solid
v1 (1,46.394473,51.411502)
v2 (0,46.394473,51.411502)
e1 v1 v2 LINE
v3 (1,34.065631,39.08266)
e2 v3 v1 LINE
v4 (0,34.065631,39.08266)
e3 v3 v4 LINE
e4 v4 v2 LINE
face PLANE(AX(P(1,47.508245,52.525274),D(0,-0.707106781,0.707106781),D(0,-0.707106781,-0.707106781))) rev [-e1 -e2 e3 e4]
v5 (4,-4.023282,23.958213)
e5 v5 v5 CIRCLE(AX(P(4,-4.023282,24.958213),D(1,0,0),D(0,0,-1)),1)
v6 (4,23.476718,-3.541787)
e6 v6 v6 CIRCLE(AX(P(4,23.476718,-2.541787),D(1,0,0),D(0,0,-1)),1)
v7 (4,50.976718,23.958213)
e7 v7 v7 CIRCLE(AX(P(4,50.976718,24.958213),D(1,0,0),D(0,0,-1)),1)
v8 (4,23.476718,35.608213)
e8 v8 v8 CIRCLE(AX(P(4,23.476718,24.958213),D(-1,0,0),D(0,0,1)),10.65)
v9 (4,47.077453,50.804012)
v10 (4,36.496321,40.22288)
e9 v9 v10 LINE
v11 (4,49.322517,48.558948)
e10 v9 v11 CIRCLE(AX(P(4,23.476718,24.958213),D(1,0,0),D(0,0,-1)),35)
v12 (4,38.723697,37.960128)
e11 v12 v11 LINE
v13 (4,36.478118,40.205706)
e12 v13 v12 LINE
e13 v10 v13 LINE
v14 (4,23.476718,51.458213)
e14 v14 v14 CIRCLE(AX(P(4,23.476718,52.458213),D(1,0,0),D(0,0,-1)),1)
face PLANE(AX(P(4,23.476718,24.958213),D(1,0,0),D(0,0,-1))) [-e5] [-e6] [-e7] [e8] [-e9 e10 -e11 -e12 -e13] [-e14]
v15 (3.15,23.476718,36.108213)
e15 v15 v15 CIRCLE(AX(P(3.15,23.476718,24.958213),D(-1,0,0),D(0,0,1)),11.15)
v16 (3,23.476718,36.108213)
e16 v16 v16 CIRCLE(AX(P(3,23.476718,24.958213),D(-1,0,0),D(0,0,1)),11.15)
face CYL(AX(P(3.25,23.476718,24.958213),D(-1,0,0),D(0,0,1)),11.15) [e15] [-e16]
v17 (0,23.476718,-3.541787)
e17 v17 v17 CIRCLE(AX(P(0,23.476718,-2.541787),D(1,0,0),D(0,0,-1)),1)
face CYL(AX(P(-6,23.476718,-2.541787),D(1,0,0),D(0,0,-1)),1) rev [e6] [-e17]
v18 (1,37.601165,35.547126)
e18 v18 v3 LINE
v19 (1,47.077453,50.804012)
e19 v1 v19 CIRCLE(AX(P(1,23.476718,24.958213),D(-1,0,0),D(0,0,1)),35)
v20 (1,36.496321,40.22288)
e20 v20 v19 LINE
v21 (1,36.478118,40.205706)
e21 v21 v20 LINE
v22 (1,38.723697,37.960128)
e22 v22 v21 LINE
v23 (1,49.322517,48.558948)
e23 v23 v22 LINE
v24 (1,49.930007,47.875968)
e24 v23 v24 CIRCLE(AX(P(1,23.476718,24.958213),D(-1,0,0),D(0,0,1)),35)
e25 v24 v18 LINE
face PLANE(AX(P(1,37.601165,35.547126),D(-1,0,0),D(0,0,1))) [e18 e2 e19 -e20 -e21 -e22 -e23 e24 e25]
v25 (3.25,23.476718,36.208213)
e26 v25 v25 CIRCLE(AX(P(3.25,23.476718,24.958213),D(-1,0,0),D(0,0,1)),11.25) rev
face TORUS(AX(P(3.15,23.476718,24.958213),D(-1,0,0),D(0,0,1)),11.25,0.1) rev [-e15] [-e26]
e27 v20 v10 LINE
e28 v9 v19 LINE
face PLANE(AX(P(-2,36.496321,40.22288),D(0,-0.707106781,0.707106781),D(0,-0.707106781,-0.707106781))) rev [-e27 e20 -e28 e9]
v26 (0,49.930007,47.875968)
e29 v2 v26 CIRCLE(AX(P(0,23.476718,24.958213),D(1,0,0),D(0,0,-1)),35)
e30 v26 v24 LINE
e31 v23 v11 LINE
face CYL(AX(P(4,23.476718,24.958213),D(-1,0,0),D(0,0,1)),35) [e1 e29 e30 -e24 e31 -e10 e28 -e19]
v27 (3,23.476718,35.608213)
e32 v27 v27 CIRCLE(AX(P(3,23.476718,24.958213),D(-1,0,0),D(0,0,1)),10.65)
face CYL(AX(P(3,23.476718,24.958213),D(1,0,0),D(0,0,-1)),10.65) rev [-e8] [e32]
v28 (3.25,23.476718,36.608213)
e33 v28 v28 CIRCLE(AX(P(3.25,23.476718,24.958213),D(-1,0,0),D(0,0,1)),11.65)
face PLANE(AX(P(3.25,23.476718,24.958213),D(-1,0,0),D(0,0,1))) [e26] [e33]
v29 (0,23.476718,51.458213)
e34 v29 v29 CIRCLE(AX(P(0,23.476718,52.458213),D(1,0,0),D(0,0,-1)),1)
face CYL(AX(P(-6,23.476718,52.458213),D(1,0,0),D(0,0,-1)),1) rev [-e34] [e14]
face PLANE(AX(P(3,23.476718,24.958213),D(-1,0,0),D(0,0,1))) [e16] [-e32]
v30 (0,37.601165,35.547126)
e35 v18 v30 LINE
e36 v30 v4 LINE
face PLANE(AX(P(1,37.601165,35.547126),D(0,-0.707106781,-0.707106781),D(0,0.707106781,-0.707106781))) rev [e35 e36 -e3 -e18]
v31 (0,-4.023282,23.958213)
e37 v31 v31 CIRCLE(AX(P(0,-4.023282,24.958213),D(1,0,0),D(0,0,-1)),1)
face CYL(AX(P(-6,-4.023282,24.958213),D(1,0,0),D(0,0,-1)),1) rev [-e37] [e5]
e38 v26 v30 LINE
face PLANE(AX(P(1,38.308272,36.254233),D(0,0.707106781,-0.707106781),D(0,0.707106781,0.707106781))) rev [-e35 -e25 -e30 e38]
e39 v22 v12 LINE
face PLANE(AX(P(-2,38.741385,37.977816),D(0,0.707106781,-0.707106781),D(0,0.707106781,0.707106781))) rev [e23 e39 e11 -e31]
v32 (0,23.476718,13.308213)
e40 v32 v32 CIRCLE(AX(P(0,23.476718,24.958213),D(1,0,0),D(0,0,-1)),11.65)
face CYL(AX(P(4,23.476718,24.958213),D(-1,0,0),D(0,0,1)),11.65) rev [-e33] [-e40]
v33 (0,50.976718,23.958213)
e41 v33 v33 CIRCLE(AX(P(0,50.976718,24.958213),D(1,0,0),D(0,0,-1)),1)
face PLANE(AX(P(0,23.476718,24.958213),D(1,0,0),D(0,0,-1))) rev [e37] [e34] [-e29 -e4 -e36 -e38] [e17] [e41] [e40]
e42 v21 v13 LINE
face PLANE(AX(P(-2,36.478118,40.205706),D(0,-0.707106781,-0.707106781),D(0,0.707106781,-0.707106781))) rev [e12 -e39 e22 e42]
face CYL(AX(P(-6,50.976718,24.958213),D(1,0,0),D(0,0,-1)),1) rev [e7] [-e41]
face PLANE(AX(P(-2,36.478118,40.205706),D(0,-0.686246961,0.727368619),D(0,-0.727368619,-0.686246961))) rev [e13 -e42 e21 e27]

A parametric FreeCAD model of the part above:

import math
import FreeCAD as App
import Part
import Sketcher
Q = App.Units.Quantity


def edges_at(feature, points):
    """Names of the edges that pass closest to the given points."""
    edges = feature.Shape.Edges
    near = lambda p: min(range(len(edges)), key=lambda i: edges[i].distToShape(Part.Vertex(*p))[0])
    return sorted({f"Edge{near(p) + 1}" for p in points})

doc = App.newDocument("Part")
body = doc.addObject("PartDesign::Body", "Body")

sketch1 = body.newObject("Sketcher::SketchObject", "Sketch")
sketch1.AttachmentSupport = (doc.getObject("YZ_Plane"), [""])
sketch1.MapMode = "FlatFace"
sketch1.addGeometry([
    Part.Circle(App.Vector(23, 25, 0), App.Vector(0, 0, 1), 35),
    Part.Circle(App.Vector(23, 25, 0), App.Vector(0, 0, 1), 12),
], False)
sketch1.addConstraint([
    Sketcher.Constraint("Coincident", 1, 3, 0, 3),
    Sketcher.Constraint("Diameter", 0, Q("70 mm")),
    Sketcher.Constraint("Diameter", 1, Q("23.3 mm")),
    Sketcher.Constraint("DistanceX", -1, 1, 0, 3, Q("23.476718 mm")),
    Sketcher.Constraint("DistanceY", -1, 1, 0, 3, Q("24.958213 mm")),
])
pad1 = body.newObject("PartDesign::Pad", "Pad")
pad1.Profile = sketch1
pad1.Length = 4

sketch2 = body.newObject("Sketcher::SketchObject", "Sketch001")
sketch2.AttachmentSupport = (doc.getObject("YZ_Plane"), [""])
sketch2.MapMode = "FlatFace"
sketch2.addGeometry([
    Part.LineSegment(App.Vector(48.9, 49, 0), App.Vector(38.3, 38.4, 0)),
    Part.ArcOfCircle(Part.Circle(App.Vector(23.5, 25, 0), App.Vector(0, 0, 1), 20), math.radians(42.13), math.radians(47.87)),
    Part.LineSegment(App.Vector(36.9, 39.8, 0), App.Vector(47.5, 50.4, 0)),
    Part.LineSegment(App.Vector(47.5, 50.4, 0), App.Vector(51.1, 54, 0)),
    Part.LineSegment(App.Vector(51.1, 54, 0), App.Vector(52.9, 51.3, 0)),
    Part.LineSegment(App.Vector(52.9, 51.3, 0), App.Vector(48.9, 49, 0)),
], False)
sketch2.addConstraint([
    Sketcher.Constraint("Coincident", 0, 2, 1, 1),
    Sketcher.Constraint("Coincident", 1, 2, 2, 1),
    Sketcher.Constraint("Coincident", 2, 2, 3, 1),
    Sketcher.Constraint("Coincident", 3, 2, 4, 1),
    Sketcher.Constraint("Coincident", 4, 2, 5, 1),
    Sketcher.Constraint("Coincident", 5, 2, 0, 1),
    Sketcher.Constraint("Parallel", 0, 2),
    Sketcher.Constraint("Parallel", 2, 3),
    Sketcher.Constraint("Equal", 0, 2),
    Sketcher.Constraint("Radius", 1, Q("20 mm")),
    Sketcher.Constraint("Angle", 0, Q("-135 deg")),
    Sketcher.Constraint("DistanceX", 0, 2, 3, 2, Q("12.803299 mm")),
    Sketcher.Constraint("Distance", 4, Q("3.25162 mm")),
    Sketcher.Constraint("Distance", 5, Q("4.618449 mm")),
    Sketcher.Constraint("DistanceX", -1, 1, 0, 2, Q("38.308272 mm")),
    Sketcher.Constraint("DistanceX", -1, 1, 2, 2, Q("47.518348 mm")),
    Sketcher.Constraint("DistanceY", -1, 1, 3, 2, Q("54.007279 mm")),
    Sketcher.Constraint("DistanceY", -1, 1, 4, 2, Q("51.31203 mm")),
    Sketcher.Constraint("DistanceX", -1, 1, 5, 2, Q("48.932562 mm")),
])
pocket1 = body.newObject("PartDesign::Pocket", "Pocket")
pocket1.Profile = sketch2
pocket1.Length = 10
pocket1.Reversed = True

sketch3 = body.newObject("Sketcher::SketchObject", "Sketch002")
sketch3.AttachmentSupport = (doc.getObject("YZ_Plane"), [""])
sketch3.MapMode = "FlatFace"
sketch3.AttachmentOffset = App.Placement(App.Vector(0, 0, 4), App.Rotation())
sketch3.addGeometry([
    Part.Circle(App.Vector(-4, 25, 0), App.Vector(0, 0, 1), 1),
    Part.Circle(App.Vector(23.5, -2.5, 0), App.Vector(0, 0, 1), 1),
    Part.Circle(App.Vector(23.5, 52.5, 0), App.Vector(0, 0, 1), 1),
    Part.Circle(App.Vector(51, 25, 0), App.Vector(0, 0, 1), 1),
], False)
sketch3.addConstraint([
    Sketcher.Constraint("Equal", 0, 1),
    Sketcher.Constraint("Equal", 1, 2),
    Sketcher.Constraint("Equal", 2, 3),
    Sketcher.Constraint("Horizontal", 0, 3, 3, 3),
    Sketcher.Constraint("Vertical", 1, 3, 2, 3),
    Sketcher.Constraint("Diameter", 0, Q("2 mm")),
    Sketcher.Constraint("DistanceY", 1, 3, 2, 3, Q("55 mm")),
    Sketcher.Constraint("DistanceX", 0, 3, 3, 3, Q("55 mm")),
    Sketcher.Constraint("DistanceX", 0, 3, 1, 3, Q("27.5 mm")),
    Sketcher.Constraint("DistanceY", 1, 3, 0, 3, Q("27.5 mm")),
    Sketcher.Constraint("DistanceX", 0, 3, -1, 1, Q("4.023282 mm")),
    Sketcher.Constraint("DistanceY", -1, 1, 0, 3, Q("24.958213 mm")),
])
pocket2 = body.newObject("PartDesign::Pocket", "Pocket001")
pocket2.Profile = sketch3
pocket2.Length = 10

sketch4 = body.newObject("Sketcher::SketchObject", "Sketch003")
sketch4.AttachmentSupport = (doc.getObject("YZ_Plane"), [""])
sketch4.MapMode = "FlatFace"
sketch4.AttachmentOffset = App.Placement(App.Vector(0, 0, 3), App.Rotation())
sketch4.addGeometry([
    Part.Circle(App.Vector(23, 25, 0), App.Vector(0, 0, 1), 12),
    Part.Circle(App.Vector(23, 25, 0), App.Vector(0, 0, 1), 11),
], False)
sketch4.addConstraint([
    Sketcher.Constraint("Coincident", 1, 3, 0, 3),
    Sketcher.Constraint("Diameter", 0, Q("23.3 mm")),
    Sketcher.Constraint("Diameter", 1, Q("21.3 mm")),
    Sketcher.Constraint("DistanceX", -1, 1, 0, 3, Q("23.476718 mm")),
    Sketcher.Constraint("DistanceY", -1, 1, 0, 3, Q("24.958213 mm")),
])
pad2 = body.newObject("PartDesign::Pad", "Pad001")
pad2.Profile = sketch4
pad2.Length = 1

sketch5 = body.newObject("Sketcher::SketchObject", "Sketch004")
sketch5.AttachmentSupport = (doc.getObject("YZ_Plane"), [""])
sketch5.MapMode = "FlatFace"
sketch5.AttachmentOffset = App.Placement(App.Vector(0, 0, 3), App.Rotation())
sketch5.addGeometry([
    Part.Circle(App.Vector(23, 25, 0), App.Vector(0, 0, 1), 12),
    Part.Circle(App.Vector(23, 25, 0), App.Vector(0, 0, 1), 11),
], False)
sketch5.addConstraint([
    Sketcher.Constraint("Coincident", 1, 3, 0, 3),
    Sketcher.Constraint("Diameter", 0, Q("23.3 mm")),
    Sketcher.Constraint("Diameter", 1, Q("22.3 mm")),
    Sketcher.Constraint("DistanceX", -1, 1, 0, 3, Q("23.476718 mm")),
    Sketcher.Constraint("DistanceY", -1, 1, 0, 3, Q("24.958213 mm")),
])
pocket3 = body.newObject("PartDesign::Pocket", "Pocket002")
pocket3.Profile = sketch5
pocket3.Length = 0.25
pocket3.Reversed = True
doc.recompute()

fillet = body.newObject("PartDesign::Fillet", "Fillet")
fillet.Base = (pocket3, edges_at(pocket3, [(3.25, 23.477, 13.808)]))
fillet.Radius = 0.1

sketch6 = body.newObject("Sketcher::SketchObject", "Sketch005")
sketch6.AttachmentSupport = (doc.getObject("YZ_Plane"), [""])
sketch6.MapMode = "FlatFace"
sketch6.addGeometry([
    Part.LineSegment(App.Vector(51, 49, 0), App.Vector(37.6, 35.5, 0)),
    Part.LineSegment(App.Vector(37.6, 35.5, 0), App.Vector(34.1, 39.1, 0)),
    Part.LineSegment(App.Vector(34.1, 39.1, 0), App.Vector(34.8, 39.8, 0)),
    Part.LineSegment(App.Vector(34.8, 39.8, 0), App.Vector(47.5, 52.5, 0)),
    Part.LineSegment(App.Vector(47.5, 52.5, 0), App.Vector(51, 49, 0)),
    Part.LineSegment(App.Vector(48.9, 49, 0), App.Vector(47.5, 50.4, 0)),
    Part.LineSegment(App.Vector(47.5, 50.4, 0), App.Vector(37.5, 40.4, 0)),
    Part.LineSegment(App.Vector(37.5, 40.4, 0), App.Vector(38.9, 39, 0)),
    Part.LineSegment(App.Vector(38.9, 39, 0), App.Vector(48.9, 49, 0)),
], False)
sketch6.addConstraint([
    Sketcher.Constraint("Coincident", 0, 2, 1, 1),
    Sketcher.Constraint("Coincident", 1, 2, 2, 1),
    Sketcher.Constraint("Coincident", 2, 2, 3, 1),
    Sketcher.Constraint("Coincident", 3, 2, 4, 1),
    Sketcher.Constraint("Coincident", 4, 2, 0, 1),
    Sketcher.Constraint("Coincident", 5, 2, 6, 1),
    Sketcher.Constraint("Coincident", 6, 2, 7, 1),
    Sketcher.Constraint("Coincident", 7, 2, 8, 1),
    Sketcher.Constraint("Coincident", 8, 2, 5, 1),
    Sketcher.Constraint("Perpendicular", 0, 1),
    Sketcher.Constraint("Perpendicular", 1, 2),
    Sketcher.Constraint("Parallel", 2, 3),
    Sketcher.Constraint("Perpendicular", 3, 4),
    Sketcher.Constraint("Parallel", 4, 5),
    Sketcher.Constraint("Perpendicular", 5, 6),
    Sketcher.Constraint("Perpendicular", 6, 7),
    Sketcher.Constraint("Perpendicular", 7, 8),
    Sketcher.Constraint("Horizontal", 4, 2, 8, 2),
    Sketcher.Constraint("Vertical", 3, 2, 5, 2),
    Sketcher.Constraint("Angle", 0, Q("-135 deg")),
    Sketcher.Constraint("Distance", 1, Q("5 mm")),
    Sketcher.Constraint("Distance", 2, Q("1 mm")),
    Sketcher.Constraint("Distance", 5, Q("2 mm")),
    Sketcher.Constraint("DistanceX", 2, 2, 6, 2, Q("2.7345 mm")),
    Sketcher.Constraint("Distance", 6, Q("14.14356 mm")),
    Sketcher.Constraint("DistanceX", -1, 1, 1, 2, Q("34.065631 mm")),
    Sketcher.Constraint("DistanceY", -1, 1, 1, 2, Q("39.08266 mm")),
])
pocket4 = body.newObject("PartDesign::Pocket", "Pocket003")
pocket4.Profile = sketch6
pocket4.Length = 1
pocket4.Reversed = True

sketch7 = body.newObject("Sketcher::SketchObject", "Sketch006")
sketch7.AttachmentSupport = (doc.getObject("YZ_Plane"), [""])
sketch7.MapMode = "FlatFace"
sketch7.AttachmentOffset = App.Placement(App.Vector(0, 0, 4), App.Rotation())
sketch7.addGeometry([
    Part.LineSegment(App.Vector(36.478, 40.206, 0), App.Vector(38.724, 37.96, 0)),
    Part.LineSegment(App.Vector(38.724, 37.96, 0), App.Vector(59.263, 58.5, 0)),
    Part.LineSegment(App.Vector(59.263, 58.5, 0), App.Vector(57.018, 60.745, 0)),
    Part.LineSegment(App.Vector(57.018, 60.745, 0), App.Vector(36.496, 40.223, 0)),
    Part.LineSegment(App.Vector(36.496, 40.223, 0), App.Vector(36.478, 40.206, 0)),
], False)
sketch7.addConstraint([
    Sketcher.Constraint("Coincident", 0, 2, 1, 1),
    Sketcher.Constraint("Coincident", 1, 2, 2, 1),
    Sketcher.Constraint("Coincident", 2, 2, 3, 1),
    Sketcher.Constraint("Coincident", 3, 2, 4, 1),
    Sketcher.Constraint("Coincident", 4, 2, 0, 1),
    Sketcher.Constraint("Perpendicular", 0, 1),
    Sketcher.Constraint("Perpendicular", 1, 2),
    Sketcher.Constraint("Perpendicular", 2, 3),
    Sketcher.Constraint("Angle", 0, Q("-45 deg")),
    Sketcher.Constraint("Distance", 2, Q("3.175 mm")),
    Sketcher.Constraint("DistanceX", 0, 2, 2, 2, Q("18.294499 mm")),
    Sketcher.Constraint("DistanceX", -1, 1, 1, 2, Q("59.26326 mm")),
    Sketcher.Constraint("DistanceY", -1, 1, 1, 2, Q("58.499691 mm")),
    Sketcher.Constraint("DistanceX", -1, 1, 3, 2, Q("36.496321 mm")),
    Sketcher.Constraint("DistanceX", -1, 1, 4, 2, Q("36.478118 mm")),
])
pocket5 = body.newObject("PartDesign::Pocket", "Pocket004")
pocket5.Profile = sketch7
pocket5.Length = 6

doc.recompute()
